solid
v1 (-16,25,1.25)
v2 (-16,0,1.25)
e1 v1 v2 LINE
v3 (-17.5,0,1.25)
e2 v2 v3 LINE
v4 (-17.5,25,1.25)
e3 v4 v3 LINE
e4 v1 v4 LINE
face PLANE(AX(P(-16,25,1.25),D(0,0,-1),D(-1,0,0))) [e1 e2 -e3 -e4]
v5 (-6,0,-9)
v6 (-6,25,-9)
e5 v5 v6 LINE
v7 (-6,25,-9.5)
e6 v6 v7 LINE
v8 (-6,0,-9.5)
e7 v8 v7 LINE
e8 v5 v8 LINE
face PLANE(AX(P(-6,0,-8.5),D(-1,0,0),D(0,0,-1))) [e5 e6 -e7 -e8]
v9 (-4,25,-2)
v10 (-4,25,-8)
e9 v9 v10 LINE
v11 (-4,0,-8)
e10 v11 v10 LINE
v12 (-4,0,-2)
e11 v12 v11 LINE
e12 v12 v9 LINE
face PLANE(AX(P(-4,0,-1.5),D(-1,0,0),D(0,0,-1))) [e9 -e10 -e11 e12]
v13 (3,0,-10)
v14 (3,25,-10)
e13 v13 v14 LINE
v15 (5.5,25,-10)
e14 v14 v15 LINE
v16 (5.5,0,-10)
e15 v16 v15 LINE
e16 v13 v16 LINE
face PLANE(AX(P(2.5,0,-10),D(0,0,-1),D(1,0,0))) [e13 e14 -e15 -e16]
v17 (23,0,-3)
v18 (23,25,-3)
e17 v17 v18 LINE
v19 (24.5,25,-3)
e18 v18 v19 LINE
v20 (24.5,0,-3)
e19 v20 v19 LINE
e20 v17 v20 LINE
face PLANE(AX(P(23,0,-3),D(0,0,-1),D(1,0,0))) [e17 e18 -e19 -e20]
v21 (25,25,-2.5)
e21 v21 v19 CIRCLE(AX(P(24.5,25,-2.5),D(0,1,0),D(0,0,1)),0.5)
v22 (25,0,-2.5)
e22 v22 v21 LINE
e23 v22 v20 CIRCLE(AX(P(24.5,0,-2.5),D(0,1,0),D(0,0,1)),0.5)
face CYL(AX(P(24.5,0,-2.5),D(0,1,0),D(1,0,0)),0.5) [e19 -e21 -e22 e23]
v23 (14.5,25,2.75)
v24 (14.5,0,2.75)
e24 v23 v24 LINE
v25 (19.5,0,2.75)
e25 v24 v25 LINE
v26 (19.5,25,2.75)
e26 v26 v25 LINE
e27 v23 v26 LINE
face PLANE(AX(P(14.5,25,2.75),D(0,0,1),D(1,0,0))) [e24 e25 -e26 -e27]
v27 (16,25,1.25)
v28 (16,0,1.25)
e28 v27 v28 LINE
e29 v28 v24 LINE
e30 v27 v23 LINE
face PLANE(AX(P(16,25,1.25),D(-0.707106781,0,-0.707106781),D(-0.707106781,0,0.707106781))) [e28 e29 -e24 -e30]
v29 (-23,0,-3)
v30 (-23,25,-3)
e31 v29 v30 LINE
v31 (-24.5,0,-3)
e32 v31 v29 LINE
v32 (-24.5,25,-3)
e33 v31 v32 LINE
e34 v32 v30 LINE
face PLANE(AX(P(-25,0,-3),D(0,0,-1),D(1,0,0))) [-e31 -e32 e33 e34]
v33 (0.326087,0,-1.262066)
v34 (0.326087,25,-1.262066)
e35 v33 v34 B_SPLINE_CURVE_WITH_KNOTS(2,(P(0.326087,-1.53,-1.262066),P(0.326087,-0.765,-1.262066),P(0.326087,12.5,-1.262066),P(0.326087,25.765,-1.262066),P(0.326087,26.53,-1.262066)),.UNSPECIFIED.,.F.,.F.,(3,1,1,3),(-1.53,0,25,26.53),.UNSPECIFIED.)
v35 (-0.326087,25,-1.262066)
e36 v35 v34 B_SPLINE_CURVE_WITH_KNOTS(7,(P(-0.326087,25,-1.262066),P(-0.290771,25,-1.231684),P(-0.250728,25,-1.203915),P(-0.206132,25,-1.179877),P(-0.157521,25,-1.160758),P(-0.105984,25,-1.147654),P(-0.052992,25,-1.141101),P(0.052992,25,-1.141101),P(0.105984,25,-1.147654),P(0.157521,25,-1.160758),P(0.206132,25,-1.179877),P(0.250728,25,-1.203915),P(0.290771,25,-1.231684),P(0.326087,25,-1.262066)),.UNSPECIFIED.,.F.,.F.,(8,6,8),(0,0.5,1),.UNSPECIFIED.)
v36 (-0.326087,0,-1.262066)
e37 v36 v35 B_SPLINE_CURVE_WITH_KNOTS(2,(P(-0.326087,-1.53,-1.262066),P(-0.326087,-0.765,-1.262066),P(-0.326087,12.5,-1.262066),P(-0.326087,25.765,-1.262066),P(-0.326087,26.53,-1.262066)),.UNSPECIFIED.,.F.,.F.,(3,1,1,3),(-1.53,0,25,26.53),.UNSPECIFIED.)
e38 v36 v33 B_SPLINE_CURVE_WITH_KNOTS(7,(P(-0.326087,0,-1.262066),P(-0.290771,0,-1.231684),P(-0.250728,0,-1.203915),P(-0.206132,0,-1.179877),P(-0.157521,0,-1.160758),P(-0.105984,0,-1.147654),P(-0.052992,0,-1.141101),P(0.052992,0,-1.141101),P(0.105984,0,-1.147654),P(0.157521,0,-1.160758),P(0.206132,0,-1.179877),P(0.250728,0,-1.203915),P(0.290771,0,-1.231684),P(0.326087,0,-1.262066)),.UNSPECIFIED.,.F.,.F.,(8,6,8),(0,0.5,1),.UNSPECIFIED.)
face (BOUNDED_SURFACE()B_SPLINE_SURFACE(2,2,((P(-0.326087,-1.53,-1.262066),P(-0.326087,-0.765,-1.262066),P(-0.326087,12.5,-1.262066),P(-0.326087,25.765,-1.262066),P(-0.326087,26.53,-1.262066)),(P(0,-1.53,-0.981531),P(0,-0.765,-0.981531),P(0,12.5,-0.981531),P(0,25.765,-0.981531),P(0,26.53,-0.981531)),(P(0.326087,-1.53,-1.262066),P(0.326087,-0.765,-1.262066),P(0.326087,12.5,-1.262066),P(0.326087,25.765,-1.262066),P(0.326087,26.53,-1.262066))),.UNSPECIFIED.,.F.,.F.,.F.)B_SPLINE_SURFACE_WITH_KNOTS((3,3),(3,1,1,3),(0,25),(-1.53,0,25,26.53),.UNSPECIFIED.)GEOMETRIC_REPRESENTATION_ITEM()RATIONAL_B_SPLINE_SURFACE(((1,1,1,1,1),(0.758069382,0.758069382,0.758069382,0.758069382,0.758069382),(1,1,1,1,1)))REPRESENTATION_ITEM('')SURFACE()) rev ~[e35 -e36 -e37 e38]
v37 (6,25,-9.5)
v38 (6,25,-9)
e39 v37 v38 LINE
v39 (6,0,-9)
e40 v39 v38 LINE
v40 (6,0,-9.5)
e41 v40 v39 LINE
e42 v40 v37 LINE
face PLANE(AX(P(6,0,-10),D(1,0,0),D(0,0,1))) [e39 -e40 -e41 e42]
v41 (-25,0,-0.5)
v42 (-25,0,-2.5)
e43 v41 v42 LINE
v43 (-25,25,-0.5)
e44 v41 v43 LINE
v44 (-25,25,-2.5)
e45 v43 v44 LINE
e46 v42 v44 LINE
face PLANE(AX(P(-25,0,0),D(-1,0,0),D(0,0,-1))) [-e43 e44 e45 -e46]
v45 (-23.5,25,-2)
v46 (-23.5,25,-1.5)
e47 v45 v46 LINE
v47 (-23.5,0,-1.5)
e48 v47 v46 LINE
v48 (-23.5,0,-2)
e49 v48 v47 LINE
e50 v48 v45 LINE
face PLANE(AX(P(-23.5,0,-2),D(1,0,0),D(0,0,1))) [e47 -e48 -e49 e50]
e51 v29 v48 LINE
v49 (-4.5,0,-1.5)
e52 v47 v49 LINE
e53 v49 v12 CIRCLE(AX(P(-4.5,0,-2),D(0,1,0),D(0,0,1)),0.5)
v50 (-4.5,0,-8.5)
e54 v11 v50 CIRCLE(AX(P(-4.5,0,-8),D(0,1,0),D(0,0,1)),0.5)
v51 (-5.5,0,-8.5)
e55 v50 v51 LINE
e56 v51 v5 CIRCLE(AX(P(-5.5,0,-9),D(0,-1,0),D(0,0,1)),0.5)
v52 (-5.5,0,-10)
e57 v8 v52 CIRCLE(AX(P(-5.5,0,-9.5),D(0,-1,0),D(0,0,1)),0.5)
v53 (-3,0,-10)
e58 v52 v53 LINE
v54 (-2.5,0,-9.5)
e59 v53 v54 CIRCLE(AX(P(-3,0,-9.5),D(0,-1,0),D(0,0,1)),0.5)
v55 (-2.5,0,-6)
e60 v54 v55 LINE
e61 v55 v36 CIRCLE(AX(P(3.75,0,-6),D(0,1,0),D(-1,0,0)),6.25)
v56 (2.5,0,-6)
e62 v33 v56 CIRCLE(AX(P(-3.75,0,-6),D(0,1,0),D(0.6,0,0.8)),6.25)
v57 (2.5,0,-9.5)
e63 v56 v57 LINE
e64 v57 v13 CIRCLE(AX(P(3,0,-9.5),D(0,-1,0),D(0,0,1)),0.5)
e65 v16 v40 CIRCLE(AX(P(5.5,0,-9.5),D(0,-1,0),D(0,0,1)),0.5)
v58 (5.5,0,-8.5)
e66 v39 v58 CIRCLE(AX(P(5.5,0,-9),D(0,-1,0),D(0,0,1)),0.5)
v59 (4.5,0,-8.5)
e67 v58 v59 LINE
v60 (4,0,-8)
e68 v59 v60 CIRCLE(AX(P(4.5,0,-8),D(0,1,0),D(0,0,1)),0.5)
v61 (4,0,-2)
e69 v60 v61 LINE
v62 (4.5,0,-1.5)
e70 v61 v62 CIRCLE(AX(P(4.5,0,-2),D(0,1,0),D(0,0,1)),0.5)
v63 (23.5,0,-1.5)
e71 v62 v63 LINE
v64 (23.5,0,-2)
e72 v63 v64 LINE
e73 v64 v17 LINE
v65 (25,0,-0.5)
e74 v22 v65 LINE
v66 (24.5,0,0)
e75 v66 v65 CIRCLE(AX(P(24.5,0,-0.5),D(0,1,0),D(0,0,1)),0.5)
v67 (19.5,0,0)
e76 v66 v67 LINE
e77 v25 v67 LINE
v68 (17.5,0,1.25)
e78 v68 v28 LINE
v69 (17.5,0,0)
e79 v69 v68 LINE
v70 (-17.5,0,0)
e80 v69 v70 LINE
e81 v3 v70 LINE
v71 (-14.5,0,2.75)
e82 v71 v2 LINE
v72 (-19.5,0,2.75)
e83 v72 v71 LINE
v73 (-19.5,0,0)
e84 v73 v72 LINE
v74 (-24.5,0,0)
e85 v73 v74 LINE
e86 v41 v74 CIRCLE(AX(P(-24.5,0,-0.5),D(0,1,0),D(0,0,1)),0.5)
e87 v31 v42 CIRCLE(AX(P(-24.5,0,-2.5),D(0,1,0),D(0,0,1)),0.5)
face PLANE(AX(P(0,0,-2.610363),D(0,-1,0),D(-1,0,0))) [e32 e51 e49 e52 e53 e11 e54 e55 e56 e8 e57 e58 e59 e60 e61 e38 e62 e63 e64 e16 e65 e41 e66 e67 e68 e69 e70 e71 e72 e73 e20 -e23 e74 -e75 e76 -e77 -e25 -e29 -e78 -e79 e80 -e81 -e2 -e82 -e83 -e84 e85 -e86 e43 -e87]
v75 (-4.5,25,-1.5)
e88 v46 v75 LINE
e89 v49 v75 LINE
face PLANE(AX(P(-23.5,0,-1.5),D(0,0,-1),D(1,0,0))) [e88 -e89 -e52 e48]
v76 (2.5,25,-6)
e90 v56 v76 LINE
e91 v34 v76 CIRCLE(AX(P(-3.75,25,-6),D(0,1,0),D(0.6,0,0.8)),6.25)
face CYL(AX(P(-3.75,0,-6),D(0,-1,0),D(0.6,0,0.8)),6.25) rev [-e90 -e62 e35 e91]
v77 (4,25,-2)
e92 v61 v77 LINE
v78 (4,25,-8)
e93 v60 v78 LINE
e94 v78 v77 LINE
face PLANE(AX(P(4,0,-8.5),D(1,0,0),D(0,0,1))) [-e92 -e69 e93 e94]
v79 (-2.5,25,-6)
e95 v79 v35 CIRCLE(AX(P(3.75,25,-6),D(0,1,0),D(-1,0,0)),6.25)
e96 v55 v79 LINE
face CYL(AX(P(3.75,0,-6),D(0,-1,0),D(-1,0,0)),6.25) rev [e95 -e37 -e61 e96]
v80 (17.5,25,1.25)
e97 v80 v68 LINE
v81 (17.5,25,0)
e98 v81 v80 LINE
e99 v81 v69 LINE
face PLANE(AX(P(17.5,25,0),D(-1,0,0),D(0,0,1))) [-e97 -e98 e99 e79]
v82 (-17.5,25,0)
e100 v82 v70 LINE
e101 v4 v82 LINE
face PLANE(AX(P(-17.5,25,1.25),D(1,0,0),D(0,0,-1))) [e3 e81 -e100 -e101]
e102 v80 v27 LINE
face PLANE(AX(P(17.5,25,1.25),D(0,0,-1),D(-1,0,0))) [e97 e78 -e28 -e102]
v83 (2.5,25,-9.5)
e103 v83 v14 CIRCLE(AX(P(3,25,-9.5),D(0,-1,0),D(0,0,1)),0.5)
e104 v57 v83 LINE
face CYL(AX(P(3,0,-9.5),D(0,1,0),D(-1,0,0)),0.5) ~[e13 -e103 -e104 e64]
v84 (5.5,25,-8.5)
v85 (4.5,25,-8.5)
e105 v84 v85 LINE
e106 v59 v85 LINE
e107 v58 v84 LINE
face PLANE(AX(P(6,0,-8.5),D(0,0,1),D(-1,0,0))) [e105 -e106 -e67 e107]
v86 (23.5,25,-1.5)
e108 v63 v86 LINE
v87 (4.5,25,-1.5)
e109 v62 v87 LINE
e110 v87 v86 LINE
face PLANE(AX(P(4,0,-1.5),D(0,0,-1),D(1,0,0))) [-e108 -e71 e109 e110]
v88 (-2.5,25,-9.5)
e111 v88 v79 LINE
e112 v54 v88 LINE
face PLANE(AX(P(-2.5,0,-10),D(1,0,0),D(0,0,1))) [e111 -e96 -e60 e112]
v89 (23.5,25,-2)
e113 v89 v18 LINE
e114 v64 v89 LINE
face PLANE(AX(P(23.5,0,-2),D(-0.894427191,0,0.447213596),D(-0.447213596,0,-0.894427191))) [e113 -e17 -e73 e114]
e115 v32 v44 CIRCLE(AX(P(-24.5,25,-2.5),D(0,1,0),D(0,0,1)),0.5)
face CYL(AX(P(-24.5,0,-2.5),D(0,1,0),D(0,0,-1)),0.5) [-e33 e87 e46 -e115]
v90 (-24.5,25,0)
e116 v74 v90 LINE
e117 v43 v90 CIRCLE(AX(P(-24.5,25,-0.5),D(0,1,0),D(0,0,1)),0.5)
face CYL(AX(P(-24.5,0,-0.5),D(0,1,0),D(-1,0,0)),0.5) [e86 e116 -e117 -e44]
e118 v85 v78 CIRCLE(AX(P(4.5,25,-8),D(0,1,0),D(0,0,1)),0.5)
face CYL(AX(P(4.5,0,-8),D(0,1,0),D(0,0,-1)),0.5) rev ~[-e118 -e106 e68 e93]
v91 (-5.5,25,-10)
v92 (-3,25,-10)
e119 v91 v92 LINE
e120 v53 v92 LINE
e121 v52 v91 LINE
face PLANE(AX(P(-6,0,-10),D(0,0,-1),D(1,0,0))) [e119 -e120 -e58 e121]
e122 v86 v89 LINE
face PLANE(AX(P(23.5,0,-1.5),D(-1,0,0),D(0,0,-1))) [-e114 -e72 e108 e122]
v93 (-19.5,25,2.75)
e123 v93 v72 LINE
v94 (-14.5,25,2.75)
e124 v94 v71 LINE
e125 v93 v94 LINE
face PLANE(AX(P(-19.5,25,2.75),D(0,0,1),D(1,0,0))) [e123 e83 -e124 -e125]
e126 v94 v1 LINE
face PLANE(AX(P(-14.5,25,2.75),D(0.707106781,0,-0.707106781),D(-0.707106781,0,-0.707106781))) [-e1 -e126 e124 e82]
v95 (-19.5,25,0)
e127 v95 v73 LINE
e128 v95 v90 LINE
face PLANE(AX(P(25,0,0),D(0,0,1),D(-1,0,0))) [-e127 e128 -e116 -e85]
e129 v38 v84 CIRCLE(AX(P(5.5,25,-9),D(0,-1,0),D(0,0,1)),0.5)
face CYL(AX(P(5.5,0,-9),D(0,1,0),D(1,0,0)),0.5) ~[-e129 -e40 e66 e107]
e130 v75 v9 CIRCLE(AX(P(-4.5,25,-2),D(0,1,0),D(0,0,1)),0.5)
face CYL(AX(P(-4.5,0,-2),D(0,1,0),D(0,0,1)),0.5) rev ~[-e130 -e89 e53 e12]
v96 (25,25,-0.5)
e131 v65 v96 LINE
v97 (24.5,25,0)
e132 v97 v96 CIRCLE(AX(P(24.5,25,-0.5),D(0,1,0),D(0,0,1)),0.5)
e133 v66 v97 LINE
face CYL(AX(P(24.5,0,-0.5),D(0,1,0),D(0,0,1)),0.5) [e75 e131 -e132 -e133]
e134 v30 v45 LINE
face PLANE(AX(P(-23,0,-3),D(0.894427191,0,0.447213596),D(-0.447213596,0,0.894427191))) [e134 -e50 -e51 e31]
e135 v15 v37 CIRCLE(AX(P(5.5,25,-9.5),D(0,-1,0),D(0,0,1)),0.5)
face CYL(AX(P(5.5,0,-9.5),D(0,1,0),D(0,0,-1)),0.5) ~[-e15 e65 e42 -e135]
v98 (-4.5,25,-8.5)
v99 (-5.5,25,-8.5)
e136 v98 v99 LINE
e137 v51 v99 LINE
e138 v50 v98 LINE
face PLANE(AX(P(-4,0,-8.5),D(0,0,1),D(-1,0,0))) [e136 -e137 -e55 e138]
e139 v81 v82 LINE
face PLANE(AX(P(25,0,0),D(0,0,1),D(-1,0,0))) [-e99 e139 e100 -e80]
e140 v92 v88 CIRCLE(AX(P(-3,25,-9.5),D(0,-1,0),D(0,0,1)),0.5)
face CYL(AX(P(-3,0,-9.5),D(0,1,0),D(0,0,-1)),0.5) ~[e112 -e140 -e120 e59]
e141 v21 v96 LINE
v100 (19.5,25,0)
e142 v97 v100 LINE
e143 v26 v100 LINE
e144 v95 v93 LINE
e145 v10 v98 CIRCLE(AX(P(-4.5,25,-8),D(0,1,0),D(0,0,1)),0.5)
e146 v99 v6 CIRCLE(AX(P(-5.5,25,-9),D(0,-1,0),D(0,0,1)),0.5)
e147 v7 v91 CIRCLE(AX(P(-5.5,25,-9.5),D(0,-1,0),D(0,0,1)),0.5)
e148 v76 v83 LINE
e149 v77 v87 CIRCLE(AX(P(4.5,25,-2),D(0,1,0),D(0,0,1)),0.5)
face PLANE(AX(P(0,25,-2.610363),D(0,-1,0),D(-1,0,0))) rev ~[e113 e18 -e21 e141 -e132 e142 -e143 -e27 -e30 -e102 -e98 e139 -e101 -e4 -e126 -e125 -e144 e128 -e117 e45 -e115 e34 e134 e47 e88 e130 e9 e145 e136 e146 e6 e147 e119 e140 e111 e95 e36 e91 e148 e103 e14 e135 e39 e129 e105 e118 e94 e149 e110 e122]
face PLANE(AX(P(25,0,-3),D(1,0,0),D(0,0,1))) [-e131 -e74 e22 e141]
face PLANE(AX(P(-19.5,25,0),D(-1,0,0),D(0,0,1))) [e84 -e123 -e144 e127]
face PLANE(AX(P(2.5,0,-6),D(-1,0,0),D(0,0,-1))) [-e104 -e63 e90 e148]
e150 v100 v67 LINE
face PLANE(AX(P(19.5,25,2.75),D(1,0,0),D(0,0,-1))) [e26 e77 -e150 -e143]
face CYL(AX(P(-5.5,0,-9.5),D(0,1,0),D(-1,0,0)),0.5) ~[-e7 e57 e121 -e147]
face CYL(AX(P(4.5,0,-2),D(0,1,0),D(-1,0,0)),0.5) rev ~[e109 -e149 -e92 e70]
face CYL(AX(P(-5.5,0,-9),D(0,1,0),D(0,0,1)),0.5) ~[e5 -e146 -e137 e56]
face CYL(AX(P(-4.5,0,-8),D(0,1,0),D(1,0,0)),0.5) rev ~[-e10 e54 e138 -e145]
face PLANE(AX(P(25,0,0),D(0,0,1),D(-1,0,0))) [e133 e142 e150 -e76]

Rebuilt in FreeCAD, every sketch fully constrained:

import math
import FreeCAD as App
import Part
import Sketcher

V = App.Vector
Q = App.Units.Quantity


def edges_at(feature, points):
    """Names of the edges that pass closest to the given points."""
    edges = feature.Shape.Edges
    near = lambda p: min(range(len(edges)), key=lambda i: edges[i].distToShape(Part.Vertex(*p))[0])
    return sorted({f"Edge{near(p) + 1}" for p in points})


def add_polygon(sketch, points):
    """Adds a closed chain of lines whose ends are joined by coincident constraints."""
    first, n = sketch.GeometryCount, len(points)
    for a, b in zip(points, points[1:] + points[:1]):
        sketch.addGeometry(Part.LineSegment(App.Vector(*a, 0), App.Vector(*b, 0)), False)
    for i in range(n):
        sketch.addConstraint(Sketcher.Constraint("Coincident", first + i, 2, first + (i + 1) % n, 1))

doc = App.newDocument("Part")
params = doc.addObject("Spreadsheet::Sheet", "Params")
for row, (alias, value) in enumerate([
    ("sketch1_width", "2 mm"),
    ("sketch1_width2", "50 mm"),
    ("sketch1_height", "3 mm"),
    ("sketch1_height2", "7 mm"),
    ("sketch1_height3", "4 mm"),
    ("pad1_length", "25 mm"),
    ("fillet_radius", "0.5 mm"),
    ("fillet2_radius", "0.5 mm"),
    ("sketch2_width", "5 mm"),
    ("sketch2_width2", "2 mm"),
    ("sketch2_width3", "1.5 mm"),
    ("sketch2_height", "2.75 mm"),
    ("pad2_length", "25 mm"),
], start=1):
    params.set(f"A{row}", alias)
    params.set(f"B{row}", "=" + value)
    params.setAlias(f"B{row}", alias)

body = doc.addObject("PartDesign::Body", "Body")

# Sketch on XZ plane
sketch1 = body.newObject("Sketcher::SketchObject", "Sketch")
sketch1.AttachmentSupport = (doc.getObject("XZ_Plane"), [""])
sketch1.MapMode = "FlatFace"
sketch1.addGeometry([
    Part.LineSegment(V(-4, -1.5, 0), V(-23.5, -1.5, 0)),  # 0
    Part.LineSegment(V(-23.5, -1.5, 0), V(-23.5, -2, 0)),  # 1
    Part.LineSegment(V(-23.5, -2, 0), V(-23, -3, 0)),  # 2
    Part.LineSegment(V(-23, -3, 0), V(-25, -3, 0)),  # 3
    Part.LineSegment(V(-25, -3, 0), V(-25, 0, 0)),  # 4
    Part.LineSegment(V(-25, 0, 0), V(25, 0, 0)),  # 5
    Part.LineSegment(V(25, 0, 0), V(25, -3, 0)),  # 6
    Part.LineSegment(V(25, -3, 0), V(23, -3, 0)),  # 7
    Part.LineSegment(V(23, -3, 0), V(23.5, -2, 0)),  # 8
    Part.LineSegment(V(23.5, -2, 0), V(23.5, -1.5, 0)),  # 9
    Part.LineSegment(V(23.5, -1.5, 0), V(4, -1.5, 0)),  # 10
    Part.LineSegment(V(4, -1.5, 0), V(4, -8.5, 0)),  # 11
    Part.LineSegment(V(4, -8.5, 0), V(6, -8.5, 0)),  # 12
    Part.LineSegment(V(6, -8.5, 0), V(6, -10, 0)),  # 13
    Part.LineSegment(V(6, -10, 0), V(2.5, -10, 0)),  # 14
    Part.LineSegment(V(2.5, -10, 0), V(2.5, -6, 0)),  # 15
    Part.ArcOfCircle(Part.Circle(V(-3.7, -6, 0), V(0, 0, 1), 6.2), math.radians(0), math.radians(53)),  # 16
    Part.ArcOfCircle(Part.Circle(V(3.7, -6, 0), V(0, 0, 1), 6.2), math.radians(127), math.radians(180)),  # 17
    Part.LineSegment(V(-2.5, -6, 0), V(-2.5, -10, 0)),  # 18
    Part.LineSegment(V(-2.5, -10, 0), V(-6, -10, 0)),  # 19
    Part.LineSegment(V(-6, -10, 0), V(-6, -8.5, 0)),  # 20
    Part.LineSegment(V(-6, -8.5, 0), V(-4, -8.5, 0)),  # 21
    Part.LineSegment(V(-4, -8.5, 0), V(-4, -1.5, 0)),  # 22
], False)
sketch1.addConstraint([
    Sketcher.Constraint("Coincident", 0, 2, 1, 1),
    Sketcher.Constraint("Coincident", 1, 2, 2, 1),
    Sketcher.Constraint("Coincident", 2, 2, 3, 1),
    Sketcher.Constraint("Coincident", 3, 2, 4, 1),
    Sketcher.Constraint("Coincident", 4, 2, 5, 1),
    Sketcher.Constraint("Coincident", 5, 2, 6, 1),
    Sketcher.Constraint("Coincident", 6, 2, 7, 1),
    Sketcher.Constraint("Coincident", 7, 2, 8, 1),
    Sketcher.Constraint("Coincident", 8, 2, 9, 1),
    Sketcher.Constraint("Coincident", 9, 2, 10, 1),
    Sketcher.Constraint("Coincident", 10, 2, 11, 1),
    Sketcher.Constraint("Coincident", 11, 2, 12, 1),
    Sketcher.Constraint("Coincident", 12, 2, 13, 1),
    Sketcher.Constraint("Coincident", 13, 2, 14, 1),
    Sketcher.Constraint("Coincident", 14, 2, 15, 1),
    Sketcher.Constraint("Tangent", 15, 2, 16, 1),
    Sketcher.Constraint("Coincident", 16, 2, 17, 1),
    Sketcher.Constraint("Tangent", 17, 2, 18, 1),
    Sketcher.Constraint("Coincident", 18, 2, 19, 1),
    Sketcher.Constraint("Coincident", 19, 2, 20, 1),
    Sketcher.Constraint("Coincident", 20, 2, 21, 1),
    Sketcher.Constraint("Coincident", 21, 2, 22, 1),
    Sketcher.Constraint("Coincident", 22, 2, 0, 1),
    Sketcher.Constraint("Horizontal", 0),
    Sketcher.Constraint("Vertical", 1),
    Sketcher.Constraint("Horizontal", 3),
    Sketcher.Constraint("Vertical", 4),
    Sketcher.Constraint("Horizontal", 5),
    Sketcher.Constraint("Vertical", 6),
    Sketcher.Constraint("Horizontal", 7),
    Sketcher.Constraint("Vertical", 9),
    Sketcher.Constraint("Horizontal", 10),
    Sketcher.Constraint("Vertical", 11),
    Sketcher.Constraint("Horizontal", 12),
    Sketcher.Constraint("Vertical", 13),
    Sketcher.Constraint("Horizontal", 14),
    Sketcher.Constraint("Vertical", 15),
    Sketcher.Constraint("Vertical", 18),
    Sketcher.Constraint("Horizontal", 19),
    Sketcher.Constraint("Vertical", 20),
    Sketcher.Constraint("Horizontal", 21),
    Sketcher.Constraint("Vertical", 22),
    Sketcher.Constraint("Equal", 16, 17),
    Sketcher.Constraint("Symmetric", 4, 2, 5, 2, -1, 1),
    Sketcher.Constraint("Symmetric", 16, 3, 17, 3, -2),
    Sketcher.Constraint("Symmetric", 2, 2, 7, 2, -2),
    Sketcher.Constraint("Symmetric", 1, 2, 8, 2, -2),
    Sketcher.Constraint("Symmetric", 13, 2, 19, 2, -2),
    Sketcher.Constraint("Symmetric", 11, 2, 21, 2, -2),
    Sketcher.Constraint("Horizontal", 0, 2, 9, 2),
    Sketcher.Constraint("Equal", 7, 12),
    Sketcher.Constraint("DistanceX", 3, 2, 3, 1, Q("2 mm")),
    Sketcher.Constraint("DistanceX", 5, 1, 5, 2, Q("50 mm")),
    Sketcher.Constraint("DistanceY", 4, 1, 4, 2, Q("3 mm")),
    Sketcher.Constraint("DistanceY", 11, 2, 11, 1, Q("7 mm")),
    Sketcher.Constraint("DistanceY", 15, 1, 15, 2, Q("4 mm")),
    Sketcher.Constraint("Radius", 16, Q("6.25 mm")),
    Sketcher.Constraint("DistanceX", 0, 2, 0, 1, Q("19.5 mm")),
    Sketcher.Constraint("DistanceX", 14, 2, 14, 1, Q("3.5 mm")),
    Sketcher.Constraint("DistanceY", 1, 2, 1, 1, Q("0.5 mm")),
    Sketcher.Constraint("DistanceY", 13, 2, 13, 1, Q("1.5 mm")),
    Sketcher.Constraint("DistanceY", 16, 3, -1, 1, Q("6 mm")),
    Sketcher.Constraint("DistanceX", -1, 1, 10, 2, Q("4 mm")),
])
sketch1.setExpression("Constraints[51]", "Params.sketch1_width")
sketch1.setExpression("Constraints[52]", "Params.sketch1_width2")
sketch1.setExpression("Constraints[53]", "Params.sketch1_height")
sketch1.setExpression("Constraints[54]", "Params.sketch1_height2")
sketch1.setExpression("Constraints[55]", "Params.sketch1_height3")
pad1 = body.newObject("PartDesign::Pad", "Pad")
pad1.Profile = sketch1
pad1.setExpression("Length", "Params.pad1_length")
pad1.Reversed = True
doc.recompute()

fillet = body.newObject("PartDesign::Fillet", "Fillet")
fillet.Base = (pad1, edges_at(pad1, [
    (-4, 12.5, -1.5),
    (-4, 12.5, -8.5),
    (0, 12.5, -1),
    (4, 12.5, -8.5),
    (4, 12.5, -1.5),
]))
fillet.setExpression("Radius", "Params.fillet_radius")
doc.recompute()

fillet2 = body.newObject("PartDesign::Fillet", "Fillet001")
fillet2.Base = (fillet, edges_at(fillet, [
    (-6, 12.5, -8.5),
    (-6, 12.5, -10),
    (-2.5, 12.5, -10),
    (2.5, 12.5, -10),
    (6, 12.5, -10),
    (6, 12.5, -8.5),
    (25, 12.5, -3),
    (25, 12.5, 0),
    (-25, 12.5, 0),
    (-25, 12.5, -3),
]))
fillet2.setExpression("Radius", "Params.fillet2_radius")

# Sketch on XZ plane
sketch2 = body.newObject("Sketcher::SketchObject", "Sketch001")
sketch2.AttachmentSupport = (doc.getObject("XZ_Plane"), [""])
sketch2.MapMode = "FlatFace"
sketch2.AttachmentOffset = App.Placement(V(0, 0, -25), App.Rotation())
add_polygon(sketch2, [(-19.5, 0), (-19.5, 2.8), (-14.5, 2.8), (-16, 1.2), (-17.5, 1.2), (-17.5, 0)])  # lines 0-5
add_polygon(sketch2, [(19.5, 0), (17.5, 0), (17.5, 1.2), (16, 1.2), (14.5, 2.8), (19.5, 2.8)])  # lines 6-11
sketch2.addConstraint([
    Sketcher.Constraint("Vertical", 0),
    Sketcher.Constraint("Horizontal", 1),
    Sketcher.Constraint("Horizontal", 3),
    Sketcher.Constraint("Vertical", 4),
    Sketcher.Constraint("Horizontal", 5),
    Sketcher.Constraint("Horizontal", 6),
    Sketcher.Constraint("Vertical", 7),
    Sketcher.Constraint("Horizontal", 8),
    Sketcher.Constraint("Horizontal", 10),
    Sketcher.Constraint("Vertical", 11),
    Sketcher.Constraint("Symmetric", 4, 2, 6, 2, -1, 1),
    Sketcher.Constraint("Symmetric", 2, 2, 8, 2, -2),
    Sketcher.Constraint("Symmetric", 1, 2, 9, 2, -2),
    Sketcher.Constraint("Symmetric", 5, 2, 11, 2, -2),
    Sketcher.Constraint("Perpendicular", 2, 9),
    Sketcher.Constraint("DistanceX", 1, 1, 1, 2, Q("5 mm")),
    Sketcher.Constraint("DistanceX", 5, 2, 5, 1, Q("2 mm")),
    Sketcher.Constraint("DistanceX", 3, 2, 3, 1, Q("1.5 mm")),
    Sketcher.Constraint("DistanceX", 2, 2, -1, 1, Q("16 mm")),
    Sketcher.Constraint("DistanceY", 0, 1, 0, 2, Q("2.75 mm")),
])
sketch2.setExpression("Constraints[27]", "Params.sketch2_width")
sketch2.setExpression("Constraints[28]", "Params.sketch2_width2")
sketch2.setExpression("Constraints[29]", "Params.sketch2_width3")
sketch2.setExpression("Constraints[31]", "Params.sketch2_height")
pad2 = body.newObject("PartDesign::Pad", "Pad001")
pad2.Profile = sketch2
pad2.setExpression("Length", "Params.pad2_length")

doc.recompute()
